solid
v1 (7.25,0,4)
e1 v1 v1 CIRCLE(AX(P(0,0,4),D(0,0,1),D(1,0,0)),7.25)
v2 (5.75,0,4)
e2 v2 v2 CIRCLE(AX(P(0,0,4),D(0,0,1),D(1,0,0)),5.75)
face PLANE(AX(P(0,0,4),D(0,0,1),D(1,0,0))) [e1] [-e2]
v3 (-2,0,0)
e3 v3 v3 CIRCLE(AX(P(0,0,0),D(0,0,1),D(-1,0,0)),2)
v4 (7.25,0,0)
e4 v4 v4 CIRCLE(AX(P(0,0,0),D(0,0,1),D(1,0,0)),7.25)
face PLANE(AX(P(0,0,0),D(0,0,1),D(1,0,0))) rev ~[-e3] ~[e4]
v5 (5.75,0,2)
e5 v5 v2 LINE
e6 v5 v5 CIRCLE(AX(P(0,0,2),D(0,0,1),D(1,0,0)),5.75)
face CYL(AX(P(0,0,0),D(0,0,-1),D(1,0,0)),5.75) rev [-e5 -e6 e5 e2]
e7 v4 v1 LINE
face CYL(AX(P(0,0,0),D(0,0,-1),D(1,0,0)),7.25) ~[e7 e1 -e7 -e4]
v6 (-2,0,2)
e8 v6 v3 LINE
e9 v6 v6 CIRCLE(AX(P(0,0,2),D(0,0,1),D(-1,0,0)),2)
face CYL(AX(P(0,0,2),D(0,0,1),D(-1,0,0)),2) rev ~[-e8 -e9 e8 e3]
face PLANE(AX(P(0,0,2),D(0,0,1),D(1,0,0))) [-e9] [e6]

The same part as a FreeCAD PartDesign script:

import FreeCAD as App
import Part
import Sketcher

V = App.Vector

doc = App.newDocument("Part")
body = doc.addObject("PartDesign::Body", "Body")

# Sketch on XY plane
sketch1 = body.newObject("Sketcher::SketchObject", "Sketch")
sketch1.AttachmentSupport = (doc.getObject("XY_Plane"), [""])
sketch1.MapMode = "FlatFace"
sketch1.addGeometry([
    Part.Circle(V(0, 0, 0), V(0, 0, 1), 7),
    Part.Circle(V(0, 0, 0), V(0, 0, 1), 6),
], False)
sketch1.addConstraint([
    Sketcher.Constraint("Coincident", 0, 3, -1, 1),
    Sketcher.Constraint("Coincident", 1, 3, -1, 1),
    Sketcher.Constraint("Diameter", 1, 11.5),
    Sketcher.Constraint("Diameter", 0, 14.5),
])
pad1 = body.newObject("PartDesign::Pad", "Pad")
pad1.Profile = sketch1
pad1.Length = 4

# Sketch on XY plane
sketch2 = body.newObject("Sketcher::SketchObject", "Sketch001")
sketch2.AttachmentSupport = (doc.getObject("XY_Plane"), [""])
sketch2.MapMode = "FlatFace"
sketch2.addGeometry(Part.Circle(V(0, 0, 0), V(0, 0, 1), 6), False)
sketch2.addConstraint([
    Sketcher.Constraint("Coincident", 0, 3, -1, 1),
    Sketcher.Constraint("Diameter", 0, 11.5),
])
pad2 = body.newObject("PartDesign::Pad", "Pad001")
pad2.Profile = sketch2
pad2.Length = 2

# Sketch on XY plane
sketch3 = body.newObject("Sketcher::SketchObject", "Sketch002")
sketch3.AttachmentSupport = (doc.getObject("XY_Plane"), [""])
sketch3.MapMode = "FlatFace"
sketch3.AttachmentOffset = App.Placement(V(0, 0, 2), App.Rotation())
sketch3.addGeometry(Part.Circle(V(0, 0, 0), V(0, 0, 1), 2), False)
sketch3.addConstraint([
    Sketcher.Constraint("Coincident", 0, 3, -1, 1),
    Sketcher.Constraint("Diameter", 0, 4.0),
])
pocket1 = body.newObject("PartDesign::Pocket", "Pocket")
pocket1.Profile = sketch3
pocket1.Length = 5

doc.recompute()
